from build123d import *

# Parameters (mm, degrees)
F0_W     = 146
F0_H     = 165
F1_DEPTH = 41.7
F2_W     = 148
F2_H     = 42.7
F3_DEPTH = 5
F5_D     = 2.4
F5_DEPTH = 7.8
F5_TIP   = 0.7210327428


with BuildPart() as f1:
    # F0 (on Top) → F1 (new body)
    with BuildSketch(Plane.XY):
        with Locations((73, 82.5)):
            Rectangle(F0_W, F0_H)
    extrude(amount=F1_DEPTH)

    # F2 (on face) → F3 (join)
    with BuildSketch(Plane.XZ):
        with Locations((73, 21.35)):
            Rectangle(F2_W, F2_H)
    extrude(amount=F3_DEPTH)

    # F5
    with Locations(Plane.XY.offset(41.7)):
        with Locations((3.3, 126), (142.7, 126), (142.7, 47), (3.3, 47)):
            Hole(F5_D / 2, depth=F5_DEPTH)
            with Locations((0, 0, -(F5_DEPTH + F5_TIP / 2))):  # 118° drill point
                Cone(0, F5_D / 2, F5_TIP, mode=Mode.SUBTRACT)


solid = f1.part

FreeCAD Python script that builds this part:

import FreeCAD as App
import Part
import Sketcher

doc = App.newDocument("Part")
body = doc.addObject("PartDesign::Body", "Body")

# Sketch on XY plane
sketch1 = body.newObject("Sketcher::SketchObject", "Sketch")
sketch1.AttachmentSupport = (doc.getObject("XY_Plane"), [""])
sketch1.MapMode = "FlatFace"
sketch1.addGeometry([
    Part.LineSegment(App.Vector(0, 165, 0), App.Vector(0, 0, 0)),
    Part.LineSegment(App.Vector(0, 0, 0), App.Vector(146, 0, 0)),
    Part.LineSegment(App.Vector(146, 0, 0), App.Vector(146, 165, 0)),
    Part.LineSegment(App.Vector(146, 165, 0), App.Vector(0, 165, 0)),
], False)
sketch1.addConstraint([
    Sketcher.Constraint("Coincident", 0, 2, 1, 1),
    Sketcher.Constraint("Coincident", 1, 2, 2, 1),
    Sketcher.Constraint("Coincident", 2, 2, 3, 1),
    Sketcher.Constraint("Coincident", 3, 2, 0, 1),
    Sketcher.Constraint("Vertical", 0),
    Sketcher.Constraint("Horizontal", 1),
    Sketcher.Constraint("Vertical", 2),
    Sketcher.Constraint("Horizontal", 3),
    Sketcher.Constraint("Coincident", 0, 2, -1, 1),
    Sketcher.Constraint("DistanceX", 1, 1, 1, 2, 146.0),
    Sketcher.Constraint("DistanceY", 0, 2, 0, 1, 165.0),
])
pad1 = body.newObject("PartDesign::Pad", "Pad")
pad1.Profile = sketch1
pad1.Length = 41.7

# Sketch on XZ plane
sketch2 = body.newObject("Sketcher::SketchObject", "Sketch001")
sketch2.AttachmentSupport = (doc.getObject("XZ_Plane"), [""])
sketch2.MapMode = "FlatFace"
sketch2.addGeometry([
    Part.LineSegment(App.Vector(-1, 42.7, 0), App.Vector(-1, 0, 0)),
    Part.LineSegment(App.Vector(-1, 0, 0), App.Vector(147, 0, 0)),
    Part.LineSegment(App.Vector(147, 0, 0), App.Vector(147, 42.7, 0)),
    Part.LineSegment(App.Vector(147, 42.7, 0), App.Vector(-1, 42.7, 0)),
], False)
sketch2.addConstraint([
    Sketcher.Constraint("Coincident", 0, 2, 1, 1),
    Sketcher.Constraint("Coincident", 1, 2, 2, 1),
    Sketcher.Constraint("Coincident", 2, 2, 3, 1),
    Sketcher.Constraint("Coincident", 3, 2, 0, 1),
    Sketcher.Constraint("Vertical", 0),
    Sketcher.Constraint("Horizontal", 1),
    Sketcher.Constraint("Vertical", 2),
    Sketcher.Constraint("Horizontal", 3),
    Sketcher.Constraint("PointOnObject", 0, 2, -1),
    Sketcher.Constraint("DistanceX", 1, 1, 1, 2, 148.0),
    Sketcher.Constraint("DistanceY", 0, 2, 0, 1, 42.7),
    Sketcher.Constraint("DistanceX", 0, 2, -1, 1, 1.0),
])
pad2 = body.newObject("PartDesign::Pad", "Pad001")
pad2.Profile = sketch2
pad2.Length = 5

# Sketch on XY plane
sketch3 = body.newObject("Sketcher::SketchObject", "Sketch002")
sketch3.AttachmentSupport = (doc.getObject("XY_Plane"), [""])
sketch3.MapMode = "FlatFace"
sketch3.AttachmentOffset = App.Placement(App.Vector(0, 0, 41.7), App.Rotation())
sketch3.addGeometry([
    Part.Circle(App.Vector(3.3, 126, 0), App.Vector(0, 0, 1), 1.2),
    Part.Circle(App.Vector(142.7, 126, 0), App.Vector(0, 0, 1), 1.2),
    Part.Circle(App.Vector(142.7, 47, 0), App.Vector(0, 0, 1), 1.2),
    Part.Circle(App.Vector(3.3, 47, 0), App.Vector(0, 0, 1), 1.2),
], False)
sketch3.addConstraint([
    Sketcher.Constraint("Equal", 0, 1),
    Sketcher.Constraint("Equal", 1, 2),
    Sketcher.Constraint("Equal", 2, 3),
    Sketcher.Constraint("Horizontal", 0, 3, 1, 3),
    Sketcher.Constraint("Horizontal", 2, 3, 3, 3),
    Sketcher.Constraint("Vertical", 1, 3, 2, 3),
    Sketcher.Constraint("Vertical", 0, 3, 3, 3),
    Sketcher.Constraint("Diameter", 0, 2.4),
    Sketcher.Constraint("DistanceY", -1, 1, 0, 3, 126.0),
    Sketcher.Constraint("DistanceY", -1, 1, 2, 3, 47.0),
    Sketcher.Constraint("DistanceX", -1, 1, 0, 3, 3.3),
    Sketcher.Constraint("DistanceX", -1, 1, 1, 3, 142.7),
])
doc.recompute()
hole = body.newObject("PartDesign::Hole", "Hole")
hole.Profile = sketch3
hole.ThreadType = "None"
hole.Diameter = 2.4
hole.DepthType = "Dimension"
hole.Depth = 7.8
hole.DrillPoint = "Angled"
hole.DrillPointAngle = 118

doc.recompute()
